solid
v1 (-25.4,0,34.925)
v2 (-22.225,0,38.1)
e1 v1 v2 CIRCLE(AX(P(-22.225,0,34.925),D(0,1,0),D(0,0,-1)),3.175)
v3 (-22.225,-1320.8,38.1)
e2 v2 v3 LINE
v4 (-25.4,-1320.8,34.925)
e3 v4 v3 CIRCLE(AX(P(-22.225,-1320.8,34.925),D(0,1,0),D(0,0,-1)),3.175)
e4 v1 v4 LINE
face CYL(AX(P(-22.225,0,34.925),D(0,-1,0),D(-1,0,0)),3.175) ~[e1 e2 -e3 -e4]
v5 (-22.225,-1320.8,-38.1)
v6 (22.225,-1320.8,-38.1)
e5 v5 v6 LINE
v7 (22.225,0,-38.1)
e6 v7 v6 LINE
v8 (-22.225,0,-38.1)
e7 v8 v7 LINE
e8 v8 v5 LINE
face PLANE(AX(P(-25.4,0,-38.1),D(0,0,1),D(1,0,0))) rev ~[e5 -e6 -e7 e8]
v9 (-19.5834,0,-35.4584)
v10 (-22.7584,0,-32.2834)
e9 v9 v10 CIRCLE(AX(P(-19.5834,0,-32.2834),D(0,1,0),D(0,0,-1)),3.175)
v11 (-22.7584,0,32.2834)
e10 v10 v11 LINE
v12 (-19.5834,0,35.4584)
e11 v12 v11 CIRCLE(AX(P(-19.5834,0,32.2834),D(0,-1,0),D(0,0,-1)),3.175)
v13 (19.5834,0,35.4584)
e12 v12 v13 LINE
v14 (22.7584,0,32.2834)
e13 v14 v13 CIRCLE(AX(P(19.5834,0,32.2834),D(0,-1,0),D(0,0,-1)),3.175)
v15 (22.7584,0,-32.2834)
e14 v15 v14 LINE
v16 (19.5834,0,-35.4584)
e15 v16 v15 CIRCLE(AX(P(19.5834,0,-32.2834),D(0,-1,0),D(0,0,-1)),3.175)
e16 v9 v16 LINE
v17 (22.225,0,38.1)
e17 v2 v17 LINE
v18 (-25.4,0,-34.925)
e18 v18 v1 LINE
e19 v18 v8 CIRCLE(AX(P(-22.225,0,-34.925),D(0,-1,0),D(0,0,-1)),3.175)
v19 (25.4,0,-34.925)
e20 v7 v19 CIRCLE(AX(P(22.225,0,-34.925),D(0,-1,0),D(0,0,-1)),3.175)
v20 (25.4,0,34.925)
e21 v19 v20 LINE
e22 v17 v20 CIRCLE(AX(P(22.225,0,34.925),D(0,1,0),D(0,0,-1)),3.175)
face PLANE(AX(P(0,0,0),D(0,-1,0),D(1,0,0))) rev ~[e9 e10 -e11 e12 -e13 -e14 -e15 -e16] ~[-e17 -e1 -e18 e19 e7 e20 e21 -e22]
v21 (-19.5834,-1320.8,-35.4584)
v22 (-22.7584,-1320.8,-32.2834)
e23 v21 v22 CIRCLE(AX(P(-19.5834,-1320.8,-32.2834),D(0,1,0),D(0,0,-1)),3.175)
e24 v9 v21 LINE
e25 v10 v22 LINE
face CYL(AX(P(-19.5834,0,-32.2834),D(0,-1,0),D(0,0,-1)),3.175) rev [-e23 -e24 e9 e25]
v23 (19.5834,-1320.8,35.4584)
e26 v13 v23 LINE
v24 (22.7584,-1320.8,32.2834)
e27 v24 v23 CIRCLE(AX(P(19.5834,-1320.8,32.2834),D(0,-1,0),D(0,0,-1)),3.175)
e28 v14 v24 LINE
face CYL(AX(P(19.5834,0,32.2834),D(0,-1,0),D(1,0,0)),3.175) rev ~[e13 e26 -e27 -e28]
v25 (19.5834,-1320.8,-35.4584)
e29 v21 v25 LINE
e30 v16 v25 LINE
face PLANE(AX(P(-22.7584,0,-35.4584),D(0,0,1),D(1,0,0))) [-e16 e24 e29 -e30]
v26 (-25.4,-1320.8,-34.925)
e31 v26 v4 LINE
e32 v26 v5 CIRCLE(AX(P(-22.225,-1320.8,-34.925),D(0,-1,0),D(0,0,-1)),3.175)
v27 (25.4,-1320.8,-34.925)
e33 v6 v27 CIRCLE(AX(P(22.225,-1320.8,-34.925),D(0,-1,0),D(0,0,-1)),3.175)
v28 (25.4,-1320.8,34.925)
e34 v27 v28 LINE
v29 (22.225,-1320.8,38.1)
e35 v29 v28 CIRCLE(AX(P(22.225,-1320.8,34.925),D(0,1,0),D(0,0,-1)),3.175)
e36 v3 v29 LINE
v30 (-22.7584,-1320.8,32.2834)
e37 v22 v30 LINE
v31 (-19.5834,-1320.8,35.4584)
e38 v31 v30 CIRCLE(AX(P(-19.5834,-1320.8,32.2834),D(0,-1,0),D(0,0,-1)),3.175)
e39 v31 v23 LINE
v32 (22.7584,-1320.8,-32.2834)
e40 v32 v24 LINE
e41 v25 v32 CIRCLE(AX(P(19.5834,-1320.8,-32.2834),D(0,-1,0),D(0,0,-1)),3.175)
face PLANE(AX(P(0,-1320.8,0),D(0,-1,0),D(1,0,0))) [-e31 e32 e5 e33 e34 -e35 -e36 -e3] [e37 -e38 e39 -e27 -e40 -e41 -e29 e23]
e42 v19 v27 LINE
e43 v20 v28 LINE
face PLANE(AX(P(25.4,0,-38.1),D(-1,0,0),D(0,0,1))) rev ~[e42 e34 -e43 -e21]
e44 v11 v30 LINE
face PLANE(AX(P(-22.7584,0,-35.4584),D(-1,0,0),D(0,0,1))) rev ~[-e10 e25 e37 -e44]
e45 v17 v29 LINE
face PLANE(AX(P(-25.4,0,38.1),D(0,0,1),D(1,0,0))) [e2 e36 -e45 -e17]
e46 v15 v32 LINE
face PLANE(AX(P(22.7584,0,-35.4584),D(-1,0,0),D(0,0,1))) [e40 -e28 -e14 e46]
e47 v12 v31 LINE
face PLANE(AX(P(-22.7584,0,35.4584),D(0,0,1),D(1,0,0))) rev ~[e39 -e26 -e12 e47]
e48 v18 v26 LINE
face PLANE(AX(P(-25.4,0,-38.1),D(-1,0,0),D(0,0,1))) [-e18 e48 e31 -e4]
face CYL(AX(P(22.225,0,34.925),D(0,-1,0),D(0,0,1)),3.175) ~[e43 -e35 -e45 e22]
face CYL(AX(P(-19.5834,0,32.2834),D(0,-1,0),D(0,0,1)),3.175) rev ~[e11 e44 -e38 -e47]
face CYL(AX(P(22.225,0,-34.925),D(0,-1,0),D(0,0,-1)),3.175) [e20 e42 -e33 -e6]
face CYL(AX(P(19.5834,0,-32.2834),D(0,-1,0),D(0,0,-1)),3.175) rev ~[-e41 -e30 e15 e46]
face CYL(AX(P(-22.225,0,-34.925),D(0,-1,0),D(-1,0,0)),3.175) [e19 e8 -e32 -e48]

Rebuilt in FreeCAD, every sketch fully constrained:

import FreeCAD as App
import Part
import Sketcher
Q = App.Units.Quantity


def edges_at(feature, points):
    """Names of the edges that pass closest to the given points."""
    edges = feature.Shape.Edges
    near = lambda p: min(range(len(edges)), key=lambda i: edges[i].distToShape(Part.Vertex(*p))[0])
    return sorted({f"Edge{near(p) + 1}" for p in points})

doc = App.newDocument("Part")
body = doc.addObject("PartDesign::Body", "Body")

# Sketch on XZ plane
sketch1 = doc.addObject("Sketcher::SketchObject", "Sketch")
body.addObject(sketch1)
sketch1.AttachmentSupport = (doc.XZ_Plane, [""])
sketch1.MapMode = "FlatFace"
sketch1.addGeometry([
    Part.LineSegment(App.Vector(-25.4, 38.1, 0), App.Vector(-25.4, -38.1, 0)),  # 0
    Part.LineSegment(App.Vector(-25.4, -38.1, 0), App.Vector(25.4, -38.1, 0)),  # 1
    Part.LineSegment(App.Vector(25.4, -38.1, 0), App.Vector(25.4, 38.1, 0)),  # 2
    Part.LineSegment(App.Vector(25.4, 38.1, 0), App.Vector(-25.4, 38.1, 0)),  # 3
    Part.LineSegment(App.Vector(22.7584, -35.4584, 0), App.Vector(-22.7584, -35.4584, 0)),  # 4
    Part.LineSegment(App.Vector(-22.7584, -35.4584, 0), App.Vector(-22.7584, 35.4584, 0)),  # 5
    Part.LineSegment(App.Vector(-22.7584, 35.4584, 0), App.Vector(22.7584, 35.4584, 0)),  # 6
    Part.LineSegment(App.Vector(22.7584, 35.4584, 0), App.Vector(22.7584, -35.4584, 0)),  # 7
], False)
sketch1.addConstraint([
    Sketcher.Constraint("Coincident", 0, 2, 1, 1),
    Sketcher.Constraint("Coincident", 1, 2, 2, 1),
    Sketcher.Constraint("Coincident", 2, 2, 3, 1),
    Sketcher.Constraint("Coincident", 3, 2, 0, 1),
    Sketcher.Constraint("Coincident", 4, 2, 5, 1),
    Sketcher.Constraint("Coincident", 5, 2, 6, 1),
    Sketcher.Constraint("Coincident", 6, 2, 7, 1),
    Sketcher.Constraint("Coincident", 7, 2, 4, 1),
    Sketcher.Constraint("Vertical", 0),
    Sketcher.Constraint("Horizontal", 1),
    Sketcher.Constraint("Vertical", 2),
    Sketcher.Constraint("Horizontal", 3),
    Sketcher.Constraint("Horizontal", 4),
    Sketcher.Constraint("Vertical", 5),
    Sketcher.Constraint("Horizontal", 6),
    Sketcher.Constraint("Vertical", 7),
    Sketcher.Constraint("Symmetric", 0, 2, 2, 2, -1, 1),
    Sketcher.Constraint("Symmetric", 4, 2, 6, 2, -1, 1),
    Sketcher.Constraint("DistanceX", 1, 1, 1, 2, Q("2 in")),
    Sketcher.Constraint("DistanceY", 0, 2, 0, 1, Q("3 in")),
    Sketcher.Constraint("DistanceX", 4, 2, 4, 1, Q("1.792 in")),
    Sketcher.Constraint("DistanceY", 5, 1, 5, 2, Q("2.792 in")),
])
pad1 = doc.addObject("PartDesign::Pad", "Pad")
body.addObject(pad1)
pad1.Profile = sketch1
pad1.Length = Q("52 in")
doc.recompute()

fillet = doc.addObject("PartDesign::Fillet", "Fillet")
body.addObject(fillet)
fillet.Base = (pad1, edges_at(pad1, [
    (25.4, -660.4, 38.1),
    (-25.4, -660.4, 38.1),
    (25.4, -660.4, -38.1),
    (-22.758, -660.4, -35.458),
    (-25.4, -660.4, -38.1),
    (22.758, -660.4, 35.458),
    (22.758, -660.4, -35.458),
    (-22.758, -660.4, 35.458),
]))
fillet.Radius = Q("0.125 in")

doc.recompute()
